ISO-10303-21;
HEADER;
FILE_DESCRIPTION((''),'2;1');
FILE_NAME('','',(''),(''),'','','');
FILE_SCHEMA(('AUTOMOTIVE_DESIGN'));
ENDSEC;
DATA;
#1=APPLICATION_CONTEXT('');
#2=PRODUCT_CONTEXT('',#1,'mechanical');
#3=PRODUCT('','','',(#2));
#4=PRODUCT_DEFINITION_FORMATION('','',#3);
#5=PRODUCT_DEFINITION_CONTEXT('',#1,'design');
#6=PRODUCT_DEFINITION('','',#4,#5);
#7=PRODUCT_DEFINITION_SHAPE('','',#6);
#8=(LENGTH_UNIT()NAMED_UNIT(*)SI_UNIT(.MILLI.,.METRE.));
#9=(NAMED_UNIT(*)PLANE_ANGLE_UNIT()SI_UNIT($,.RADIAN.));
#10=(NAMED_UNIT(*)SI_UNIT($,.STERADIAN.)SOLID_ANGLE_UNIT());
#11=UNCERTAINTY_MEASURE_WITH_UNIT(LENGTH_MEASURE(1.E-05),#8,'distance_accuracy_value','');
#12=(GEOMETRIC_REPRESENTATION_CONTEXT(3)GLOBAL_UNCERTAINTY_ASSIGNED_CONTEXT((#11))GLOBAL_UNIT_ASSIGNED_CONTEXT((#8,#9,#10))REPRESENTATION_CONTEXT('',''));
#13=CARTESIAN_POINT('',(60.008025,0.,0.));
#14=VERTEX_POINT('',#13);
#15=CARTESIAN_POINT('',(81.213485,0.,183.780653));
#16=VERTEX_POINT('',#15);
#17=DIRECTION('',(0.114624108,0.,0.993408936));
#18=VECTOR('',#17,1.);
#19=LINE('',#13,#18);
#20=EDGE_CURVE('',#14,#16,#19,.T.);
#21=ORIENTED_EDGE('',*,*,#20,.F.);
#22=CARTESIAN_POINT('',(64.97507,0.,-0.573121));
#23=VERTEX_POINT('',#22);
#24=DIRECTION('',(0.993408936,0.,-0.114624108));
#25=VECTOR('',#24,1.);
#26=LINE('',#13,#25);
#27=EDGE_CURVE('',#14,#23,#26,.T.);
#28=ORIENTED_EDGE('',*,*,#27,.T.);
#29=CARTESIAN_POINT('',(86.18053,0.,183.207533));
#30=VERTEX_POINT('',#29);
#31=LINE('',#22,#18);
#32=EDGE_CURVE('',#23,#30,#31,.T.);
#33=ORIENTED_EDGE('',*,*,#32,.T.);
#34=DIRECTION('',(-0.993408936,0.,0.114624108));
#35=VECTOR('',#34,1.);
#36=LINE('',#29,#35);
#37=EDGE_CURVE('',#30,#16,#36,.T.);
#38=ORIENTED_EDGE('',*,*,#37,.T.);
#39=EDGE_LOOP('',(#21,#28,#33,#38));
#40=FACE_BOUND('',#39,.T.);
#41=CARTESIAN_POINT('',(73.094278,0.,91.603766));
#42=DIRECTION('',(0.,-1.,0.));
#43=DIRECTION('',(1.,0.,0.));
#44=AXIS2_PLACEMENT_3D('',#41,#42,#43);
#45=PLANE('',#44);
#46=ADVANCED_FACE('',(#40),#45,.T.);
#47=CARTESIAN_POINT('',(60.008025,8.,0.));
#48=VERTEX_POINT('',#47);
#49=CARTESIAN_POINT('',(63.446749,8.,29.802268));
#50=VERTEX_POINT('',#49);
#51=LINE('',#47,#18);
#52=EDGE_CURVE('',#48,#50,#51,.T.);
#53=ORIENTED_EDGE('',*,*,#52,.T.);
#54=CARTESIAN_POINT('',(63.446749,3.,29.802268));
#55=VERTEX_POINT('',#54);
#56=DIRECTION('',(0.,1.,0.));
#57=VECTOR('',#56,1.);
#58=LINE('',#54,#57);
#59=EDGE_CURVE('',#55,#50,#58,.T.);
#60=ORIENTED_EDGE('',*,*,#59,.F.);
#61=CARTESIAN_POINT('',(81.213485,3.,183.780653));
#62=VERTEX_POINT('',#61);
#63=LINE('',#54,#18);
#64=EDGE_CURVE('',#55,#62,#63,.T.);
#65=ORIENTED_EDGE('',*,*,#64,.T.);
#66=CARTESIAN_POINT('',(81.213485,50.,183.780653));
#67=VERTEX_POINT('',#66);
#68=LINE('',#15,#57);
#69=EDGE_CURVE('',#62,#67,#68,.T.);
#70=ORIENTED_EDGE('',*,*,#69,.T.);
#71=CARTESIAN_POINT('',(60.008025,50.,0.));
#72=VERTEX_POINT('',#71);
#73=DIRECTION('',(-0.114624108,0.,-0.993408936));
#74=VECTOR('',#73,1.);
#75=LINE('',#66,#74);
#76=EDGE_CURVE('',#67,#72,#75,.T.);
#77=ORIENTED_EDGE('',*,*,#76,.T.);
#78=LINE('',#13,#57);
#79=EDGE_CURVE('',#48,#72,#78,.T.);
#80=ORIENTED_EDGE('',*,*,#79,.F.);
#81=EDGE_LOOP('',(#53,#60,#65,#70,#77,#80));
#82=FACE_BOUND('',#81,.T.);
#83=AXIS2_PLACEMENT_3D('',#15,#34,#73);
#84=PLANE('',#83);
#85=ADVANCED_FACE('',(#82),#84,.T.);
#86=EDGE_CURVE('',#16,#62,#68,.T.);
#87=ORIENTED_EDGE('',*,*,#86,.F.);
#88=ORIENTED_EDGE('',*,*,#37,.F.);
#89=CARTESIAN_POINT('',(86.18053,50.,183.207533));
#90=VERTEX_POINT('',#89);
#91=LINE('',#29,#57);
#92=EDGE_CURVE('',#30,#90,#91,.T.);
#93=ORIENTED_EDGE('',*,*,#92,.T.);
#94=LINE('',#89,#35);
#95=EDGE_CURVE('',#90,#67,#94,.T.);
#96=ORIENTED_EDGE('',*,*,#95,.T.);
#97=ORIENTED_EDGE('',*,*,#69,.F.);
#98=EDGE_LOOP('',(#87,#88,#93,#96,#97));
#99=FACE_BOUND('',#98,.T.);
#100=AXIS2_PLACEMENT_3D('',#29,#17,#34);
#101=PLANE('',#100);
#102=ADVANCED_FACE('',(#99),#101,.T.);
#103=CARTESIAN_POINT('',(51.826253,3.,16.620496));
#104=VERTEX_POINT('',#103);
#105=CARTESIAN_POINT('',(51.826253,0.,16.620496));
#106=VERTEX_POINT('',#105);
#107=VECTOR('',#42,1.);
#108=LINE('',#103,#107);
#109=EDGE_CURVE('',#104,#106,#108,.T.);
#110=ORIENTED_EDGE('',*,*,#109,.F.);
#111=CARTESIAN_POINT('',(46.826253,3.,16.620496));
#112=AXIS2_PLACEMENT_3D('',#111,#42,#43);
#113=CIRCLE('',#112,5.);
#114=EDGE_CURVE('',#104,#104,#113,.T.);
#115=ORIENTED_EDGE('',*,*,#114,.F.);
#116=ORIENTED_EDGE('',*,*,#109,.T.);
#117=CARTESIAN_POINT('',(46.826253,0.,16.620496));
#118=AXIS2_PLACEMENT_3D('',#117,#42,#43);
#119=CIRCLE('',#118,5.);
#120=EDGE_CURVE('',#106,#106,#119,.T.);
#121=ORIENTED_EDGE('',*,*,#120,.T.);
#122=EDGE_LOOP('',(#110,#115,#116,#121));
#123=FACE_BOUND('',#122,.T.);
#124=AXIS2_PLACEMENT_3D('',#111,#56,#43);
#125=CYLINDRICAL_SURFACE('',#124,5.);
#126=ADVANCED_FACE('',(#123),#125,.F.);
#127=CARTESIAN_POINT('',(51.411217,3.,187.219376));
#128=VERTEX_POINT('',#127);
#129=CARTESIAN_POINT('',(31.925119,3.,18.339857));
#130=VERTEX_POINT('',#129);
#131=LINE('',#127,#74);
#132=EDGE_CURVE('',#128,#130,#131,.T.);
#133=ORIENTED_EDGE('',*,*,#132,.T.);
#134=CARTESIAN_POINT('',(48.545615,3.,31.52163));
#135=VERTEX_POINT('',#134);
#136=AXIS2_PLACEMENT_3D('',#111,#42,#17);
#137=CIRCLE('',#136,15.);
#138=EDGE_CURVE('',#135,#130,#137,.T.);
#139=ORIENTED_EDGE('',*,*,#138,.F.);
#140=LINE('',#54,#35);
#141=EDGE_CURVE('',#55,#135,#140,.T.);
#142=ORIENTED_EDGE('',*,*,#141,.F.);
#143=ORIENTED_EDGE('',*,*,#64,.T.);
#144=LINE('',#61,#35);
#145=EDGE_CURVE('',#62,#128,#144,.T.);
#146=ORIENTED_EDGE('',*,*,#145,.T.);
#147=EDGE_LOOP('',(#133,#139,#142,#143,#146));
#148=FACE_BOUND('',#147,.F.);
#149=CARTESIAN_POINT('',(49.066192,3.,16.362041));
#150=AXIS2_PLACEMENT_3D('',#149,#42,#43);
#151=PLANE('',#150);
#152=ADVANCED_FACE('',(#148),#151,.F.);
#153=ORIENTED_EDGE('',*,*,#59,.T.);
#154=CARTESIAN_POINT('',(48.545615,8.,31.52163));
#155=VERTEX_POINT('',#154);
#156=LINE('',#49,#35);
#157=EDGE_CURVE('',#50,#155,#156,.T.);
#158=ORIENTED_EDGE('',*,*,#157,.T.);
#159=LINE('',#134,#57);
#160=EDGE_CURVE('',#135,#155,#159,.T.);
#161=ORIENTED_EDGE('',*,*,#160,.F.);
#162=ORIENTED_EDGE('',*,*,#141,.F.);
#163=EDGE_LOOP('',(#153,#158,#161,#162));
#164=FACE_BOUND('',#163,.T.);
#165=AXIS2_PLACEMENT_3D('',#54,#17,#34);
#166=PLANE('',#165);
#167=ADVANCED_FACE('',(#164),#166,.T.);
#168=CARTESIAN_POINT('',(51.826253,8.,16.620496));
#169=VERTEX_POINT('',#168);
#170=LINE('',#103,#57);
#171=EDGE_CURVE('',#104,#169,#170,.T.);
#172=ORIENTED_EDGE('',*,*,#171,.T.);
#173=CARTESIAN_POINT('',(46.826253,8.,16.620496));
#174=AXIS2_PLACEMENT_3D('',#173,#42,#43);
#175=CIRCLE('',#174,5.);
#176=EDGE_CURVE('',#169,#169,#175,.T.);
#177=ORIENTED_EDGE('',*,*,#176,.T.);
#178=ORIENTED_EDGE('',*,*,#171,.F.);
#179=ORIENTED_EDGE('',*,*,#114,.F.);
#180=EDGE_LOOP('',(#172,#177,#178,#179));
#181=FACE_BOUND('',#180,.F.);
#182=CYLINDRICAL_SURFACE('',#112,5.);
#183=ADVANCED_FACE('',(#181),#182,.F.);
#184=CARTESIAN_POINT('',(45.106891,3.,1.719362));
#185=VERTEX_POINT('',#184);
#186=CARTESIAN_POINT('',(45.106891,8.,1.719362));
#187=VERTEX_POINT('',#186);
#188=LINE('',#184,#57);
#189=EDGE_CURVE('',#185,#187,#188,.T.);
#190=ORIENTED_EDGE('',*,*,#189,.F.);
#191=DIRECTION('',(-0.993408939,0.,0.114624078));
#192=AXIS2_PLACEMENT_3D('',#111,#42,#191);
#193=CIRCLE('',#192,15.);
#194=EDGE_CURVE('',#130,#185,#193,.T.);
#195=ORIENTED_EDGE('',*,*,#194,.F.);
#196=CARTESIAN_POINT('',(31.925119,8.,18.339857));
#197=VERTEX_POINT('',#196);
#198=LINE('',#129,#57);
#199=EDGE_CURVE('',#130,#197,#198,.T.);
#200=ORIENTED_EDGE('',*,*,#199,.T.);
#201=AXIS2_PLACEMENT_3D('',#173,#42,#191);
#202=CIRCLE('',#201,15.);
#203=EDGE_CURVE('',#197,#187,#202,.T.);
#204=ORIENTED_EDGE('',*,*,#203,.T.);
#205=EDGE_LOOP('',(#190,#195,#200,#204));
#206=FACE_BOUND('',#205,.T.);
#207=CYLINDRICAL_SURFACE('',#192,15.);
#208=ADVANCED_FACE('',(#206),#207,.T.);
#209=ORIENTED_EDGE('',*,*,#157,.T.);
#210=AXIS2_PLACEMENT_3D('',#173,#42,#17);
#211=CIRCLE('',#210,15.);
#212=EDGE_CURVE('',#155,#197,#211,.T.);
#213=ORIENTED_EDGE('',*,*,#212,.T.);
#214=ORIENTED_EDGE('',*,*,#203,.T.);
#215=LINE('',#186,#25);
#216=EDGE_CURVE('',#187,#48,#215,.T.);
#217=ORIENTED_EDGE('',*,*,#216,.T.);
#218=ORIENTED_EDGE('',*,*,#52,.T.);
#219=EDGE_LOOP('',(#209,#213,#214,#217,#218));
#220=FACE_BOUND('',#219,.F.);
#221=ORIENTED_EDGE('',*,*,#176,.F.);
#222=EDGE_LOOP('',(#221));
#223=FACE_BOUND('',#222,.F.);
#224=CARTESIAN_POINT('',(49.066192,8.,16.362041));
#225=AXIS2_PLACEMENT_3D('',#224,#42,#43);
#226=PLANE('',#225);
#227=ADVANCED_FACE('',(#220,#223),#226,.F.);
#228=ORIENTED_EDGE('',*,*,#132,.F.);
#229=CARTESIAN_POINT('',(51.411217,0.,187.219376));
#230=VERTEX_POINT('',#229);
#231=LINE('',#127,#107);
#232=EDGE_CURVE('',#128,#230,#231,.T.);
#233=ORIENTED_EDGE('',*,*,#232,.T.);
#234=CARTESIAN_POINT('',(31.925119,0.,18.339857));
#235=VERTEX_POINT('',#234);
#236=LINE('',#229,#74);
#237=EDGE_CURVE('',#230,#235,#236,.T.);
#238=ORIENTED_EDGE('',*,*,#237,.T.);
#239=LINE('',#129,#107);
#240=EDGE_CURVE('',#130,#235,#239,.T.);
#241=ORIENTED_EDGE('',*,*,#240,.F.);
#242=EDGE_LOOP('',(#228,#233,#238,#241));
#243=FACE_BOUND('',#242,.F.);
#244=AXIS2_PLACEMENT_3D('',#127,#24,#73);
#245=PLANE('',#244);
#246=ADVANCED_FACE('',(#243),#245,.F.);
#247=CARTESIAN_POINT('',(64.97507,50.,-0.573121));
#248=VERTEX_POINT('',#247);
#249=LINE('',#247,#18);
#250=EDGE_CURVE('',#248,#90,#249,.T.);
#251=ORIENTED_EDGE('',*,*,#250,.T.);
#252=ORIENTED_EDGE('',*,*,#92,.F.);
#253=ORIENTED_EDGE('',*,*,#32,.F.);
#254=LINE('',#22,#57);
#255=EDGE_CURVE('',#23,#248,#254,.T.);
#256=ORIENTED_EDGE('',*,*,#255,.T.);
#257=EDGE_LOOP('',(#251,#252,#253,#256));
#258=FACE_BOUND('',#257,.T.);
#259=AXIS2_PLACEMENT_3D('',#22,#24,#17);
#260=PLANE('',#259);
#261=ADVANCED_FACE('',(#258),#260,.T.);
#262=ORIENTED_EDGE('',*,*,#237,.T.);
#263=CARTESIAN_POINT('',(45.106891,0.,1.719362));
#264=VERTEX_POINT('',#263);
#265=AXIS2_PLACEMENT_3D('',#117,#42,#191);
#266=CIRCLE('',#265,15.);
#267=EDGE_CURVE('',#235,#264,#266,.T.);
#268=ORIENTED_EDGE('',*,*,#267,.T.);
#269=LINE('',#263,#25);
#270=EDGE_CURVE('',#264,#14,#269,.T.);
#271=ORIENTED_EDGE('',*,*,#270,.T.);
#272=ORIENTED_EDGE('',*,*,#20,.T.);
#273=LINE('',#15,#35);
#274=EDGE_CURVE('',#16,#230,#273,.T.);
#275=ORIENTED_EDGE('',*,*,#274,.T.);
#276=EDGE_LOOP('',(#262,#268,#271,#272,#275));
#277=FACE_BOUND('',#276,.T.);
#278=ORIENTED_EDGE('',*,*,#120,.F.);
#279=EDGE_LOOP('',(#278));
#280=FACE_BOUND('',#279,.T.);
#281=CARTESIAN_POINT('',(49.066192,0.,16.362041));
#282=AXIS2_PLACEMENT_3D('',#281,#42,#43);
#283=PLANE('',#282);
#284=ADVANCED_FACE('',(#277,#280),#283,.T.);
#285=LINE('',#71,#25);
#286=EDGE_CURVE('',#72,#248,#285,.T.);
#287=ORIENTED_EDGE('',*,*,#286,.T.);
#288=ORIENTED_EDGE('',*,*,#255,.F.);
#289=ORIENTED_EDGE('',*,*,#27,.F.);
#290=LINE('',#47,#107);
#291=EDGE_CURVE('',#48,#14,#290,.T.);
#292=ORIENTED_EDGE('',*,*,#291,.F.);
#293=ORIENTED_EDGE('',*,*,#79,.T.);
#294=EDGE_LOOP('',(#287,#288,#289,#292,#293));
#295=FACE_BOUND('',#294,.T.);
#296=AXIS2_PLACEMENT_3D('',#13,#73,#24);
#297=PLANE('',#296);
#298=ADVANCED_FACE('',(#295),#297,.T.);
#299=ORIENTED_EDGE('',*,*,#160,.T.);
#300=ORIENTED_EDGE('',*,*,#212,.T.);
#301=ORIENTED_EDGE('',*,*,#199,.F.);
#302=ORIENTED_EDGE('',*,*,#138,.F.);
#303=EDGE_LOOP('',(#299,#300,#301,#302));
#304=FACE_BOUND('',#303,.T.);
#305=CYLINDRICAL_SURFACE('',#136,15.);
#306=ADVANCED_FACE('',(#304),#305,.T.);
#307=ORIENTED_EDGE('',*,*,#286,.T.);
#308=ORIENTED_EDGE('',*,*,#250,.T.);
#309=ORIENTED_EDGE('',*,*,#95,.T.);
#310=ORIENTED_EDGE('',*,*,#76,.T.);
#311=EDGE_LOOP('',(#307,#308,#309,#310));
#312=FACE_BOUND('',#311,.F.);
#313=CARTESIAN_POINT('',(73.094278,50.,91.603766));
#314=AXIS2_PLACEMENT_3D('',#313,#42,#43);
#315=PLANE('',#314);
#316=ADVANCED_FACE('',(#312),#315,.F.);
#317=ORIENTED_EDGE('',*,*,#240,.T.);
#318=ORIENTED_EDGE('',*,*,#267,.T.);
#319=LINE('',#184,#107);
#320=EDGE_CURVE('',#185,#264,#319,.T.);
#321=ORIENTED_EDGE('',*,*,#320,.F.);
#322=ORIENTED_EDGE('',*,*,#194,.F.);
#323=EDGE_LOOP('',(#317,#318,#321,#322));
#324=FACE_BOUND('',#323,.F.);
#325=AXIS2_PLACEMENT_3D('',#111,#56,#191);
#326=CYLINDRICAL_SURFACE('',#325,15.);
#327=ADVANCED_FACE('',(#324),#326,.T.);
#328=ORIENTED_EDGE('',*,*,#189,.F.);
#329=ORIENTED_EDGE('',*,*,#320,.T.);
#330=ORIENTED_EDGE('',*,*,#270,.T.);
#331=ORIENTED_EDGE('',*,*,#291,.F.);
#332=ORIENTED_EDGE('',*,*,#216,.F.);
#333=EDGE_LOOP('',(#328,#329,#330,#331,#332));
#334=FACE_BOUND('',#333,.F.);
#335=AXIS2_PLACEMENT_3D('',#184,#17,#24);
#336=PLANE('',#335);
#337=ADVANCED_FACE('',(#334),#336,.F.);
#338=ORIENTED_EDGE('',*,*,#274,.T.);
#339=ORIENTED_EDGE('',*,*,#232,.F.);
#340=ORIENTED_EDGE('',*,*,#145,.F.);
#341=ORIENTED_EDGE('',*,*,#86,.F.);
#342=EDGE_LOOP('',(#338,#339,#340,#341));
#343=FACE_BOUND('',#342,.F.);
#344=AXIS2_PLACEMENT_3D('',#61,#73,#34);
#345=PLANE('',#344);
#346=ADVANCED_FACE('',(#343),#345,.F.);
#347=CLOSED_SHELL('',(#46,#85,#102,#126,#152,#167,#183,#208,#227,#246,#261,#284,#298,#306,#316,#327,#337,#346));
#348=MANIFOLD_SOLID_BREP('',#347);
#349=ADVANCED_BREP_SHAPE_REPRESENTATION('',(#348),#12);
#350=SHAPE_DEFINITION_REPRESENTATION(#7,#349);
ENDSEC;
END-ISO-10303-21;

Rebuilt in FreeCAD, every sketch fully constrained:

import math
import FreeCAD as App
import Part
import Sketcher

V = App.Vector


def add_polygon(sketch, points):
    """Adds a closed chain of lines whose ends are joined by coincident constraints."""
    first, n = sketch.GeometryCount, len(points)
    for a, b in zip(points, points[1:] + points[:1]):
        sketch.addGeometry(Part.LineSegment(App.Vector(*a, 0), App.Vector(*b, 0)), False)
    for i in range(n):
        sketch.addConstraint(Sketcher.Constraint("Coincident", first + i, 2, first + (i + 1) % n, 1))

doc = App.newDocument("Part")
params = doc.addObject("Spreadsheet::Sheet", "Params")
for row, (alias, value) in enumerate([
    ("sketch1_length", "5 mm"),
    ("sketch1_length2", "185 mm"),
    ("pad1_length", "50 mm"),
    ("sketch2_diameter", "10 mm"),
    ("sketch2_radius", "15 mm"),
    ("sketch2_length", "15 mm"),
    ("pad2_length", "5 mm"),
    ("sketch3_diameter", "10 mm"),
    ("sketch3_radius", "15 mm"),
    ("sketch3_length", "15 mm"),
    ("sketch3_length2", "155 mm"),
    ("pad3_length", "3 mm"),
], start=1):
    params.set(f"A{row}", alias)
    params.set(f"B{row}", "=" + value)
    params.setAlias(f"B{row}", alias)

body = doc.addObject("PartDesign::Body", "Body")

# Sketch on XZ plane
sketch1 = body.newObject("Sketcher::SketchObject", "Sketch")
sketch1.AttachmentSupport = (doc.getObject("XZ_Plane"), [""])
sketch1.MapMode = "FlatFace"
add_polygon(sketch1, [(86.2, 183.2), (81.2, 183.8), (60, 0), (65, -0.6)])  # lines 0-3
sketch1.addConstraint(Sketcher.Constraint("PointOnObject", 1, 2, -1))
sketch1.addConstraint(Sketcher.Constraint("Perpendicular", 0, 1))
sketch1.addConstraint(Sketcher.Constraint("Perpendicular", 1, 2))
sketch1.addConstraint(Sketcher.Constraint("Perpendicular", 2, 3))
sketch1.addConstraint(Sketcher.Constraint("Distance", 0, 5.0))
sketch1.addConstraint(Sketcher.Constraint("Distance", 1, 185.0))
sketch1.addConstraint(Sketcher.Constraint("DistanceX", -1, 1, 2, 2, 64.97507))
sketch1.addConstraint(Sketcher.Constraint("DistanceY", 2, 2, -1, 1, 0.573121))
sketch1.setExpression("Constraints[8]", "Params.sketch1_length")
sketch1.setExpression("Constraints[9]", "Params.sketch1_length2")
pad1 = body.newObject("PartDesign::Pad", "Pad")
pad1.Profile = sketch1
pad1.setExpression("Length", "Params.pad1_length")
pad1.Reversed = True

# Sketch on XZ plane
sketch2 = body.newObject("Sketcher::SketchObject", "Sketch001")
sketch2.AttachmentSupport = (doc.getObject("XZ_Plane"), [""])
sketch2.MapMode = "FlatFace"
sketch2.AttachmentOffset = App.Placement(V(0, 0, -3), App.Rotation())
sketch2.addGeometry(Part.LineSegment(V(45, 2, 0), V(60, 0, 0)), False)
sketch2.addGeometry(Part.LineSegment(V(60, 0, 0), V(63, 30, 0)), False)
sketch2.addGeometry(Part.LineSegment(V(63, 30, 0), V(49, 32, 0)), False)
sketch2.addGeometry(Part.ArcOfCircle(Part.Circle(V(47, 17, 0), V(0, 0, 1), 15), math.radians(83), math.radians(173)), False)
sketch2.addGeometry(Part.ArcOfCircle(Part.Circle(V(47, 17, 0), V(0, 0, 1), 15), math.radians(173), math.radians(263)), False)
sketch2.addGeometry(Part.Circle(V(47, 17, 0), V(0, 0, 1), 5), False)
sketch2.addConstraint(Sketcher.Constraint("Coincident", 0, 2, 1, 1))
sketch2.addConstraint(Sketcher.Constraint("Coincident", 1, 2, 2, 1))
sketch2.addConstraint(Sketcher.Constraint("Tangent", 2, 2, 3, 1))
sketch2.addConstraint(Sketcher.Constraint("Tangent", 3, 2, 4, 1))
sketch2.addConstraint(Sketcher.Constraint("Tangent", 4, 2, 0, 1))
sketch2.addConstraint(Sketcher.Constraint("Coincident", 5, 3, 3, 3))
sketch2.addConstraint(Sketcher.Constraint("Equal", 3, 4))
sketch2.addConstraint(Sketcher.Constraint("PointOnObject", 0, 2, -1))
sketch2.addConstraint(Sketcher.Constraint("Perpendicular", 0, 1))
sketch2.addConstraint(Sketcher.Constraint("Perpendicular", 1, 2))
sketch2.addConstraint(Sketcher.Constraint("Diameter", 5, 10.0))
sketch2.addConstraint(Sketcher.Constraint("Radius", 3, 15.0))
sketch2.addConstraint(Sketcher.Constraint("Distance", 0, 15.0))
sketch2.addConstraint(Sketcher.Constraint("DistanceX", -1, 1, 1, 2, 63.446749))
sketch2.addConstraint(Sketcher.Constraint("DistanceY", -1, 1, 1, 2, 29.802268))
sketch2.addConstraint(Sketcher.Constraint("DistanceX", -1, 1, 3, 2, 31.925119))
sketch2.setExpression("Constraints[10]", "Params.sketch2_diameter")
sketch2.setExpression("Constraints[11]", "Params.sketch2_radius")
sketch2.setExpression("Constraints[12]", "Params.sketch2_length")
pad2 = body.newObject("PartDesign::Pad", "Pad001")
pad2.Profile = sketch2
pad2.setExpression("Length", "Params.pad2_length")
pad2.Reversed = True

# Sketch on XZ plane
sketch3 = body.newObject("Sketcher::SketchObject", "Sketch002")
sketch3.AttachmentSupport = (doc.getObject("XZ_Plane"), [""])
sketch3.MapMode = "FlatFace"
sketch3.AttachmentOffset = App.Placement(V(0, 0, -3), App.Rotation())
sketch3.addGeometry(Part.LineSegment(V(45, 2, 0), V(60, 0, 0)), False)
sketch3.addGeometry(Part.LineSegment(V(60, 0, 0), V(63, 30, 0)), False)
sketch3.addGeometry(Part.LineSegment(V(63, 30, 0), V(81, 184, 0)), False)
sketch3.addGeometry(Part.LineSegment(V(81, 184, 0), V(51, 187, 0)), False)
sketch3.addGeometry(Part.LineSegment(V(51, 187, 0), V(32, 18, 0)), False)
sketch3.addGeometry(Part.ArcOfCircle(Part.Circle(V(47, 17, 0), V(0, 0, 1), 15), math.radians(173), math.radians(263)), False)
sketch3.addGeometry(Part.Circle(V(47, 17, 0), V(0, 0, 1), 5), False)
sketch3.addConstraint(Sketcher.Constraint("Coincident", 0, 2, 1, 1))
sketch3.addConstraint(Sketcher.Constraint("Coincident", 1, 2, 2, 1))
sketch3.addConstraint(Sketcher.Constraint("Coincident", 2, 2, 3, 1))
sketch3.addConstraint(Sketcher.Constraint("Coincident", 3, 2, 4, 1))
sketch3.addConstraint(Sketcher.Constraint("Tangent", 4, 2, 5, 1))
sketch3.addConstraint(Sketcher.Constraint("Tangent", 5, 2, 0, 1))
sketch3.addConstraint(Sketcher.Constraint("Coincident", 6, 3, 5, 3))
sketch3.addConstraint(Sketcher.Constraint("PointOnObject", 0, 2, -1))
sketch3.addConstraint(Sketcher.Constraint("Perpendicular", 0, 1))
sketch3.addConstraint(Sketcher.Constraint("Parallel", 1, 2))
sketch3.addConstraint(Sketcher.Constraint("Perpendicular", 2, 3))
sketch3.addConstraint(Sketcher.Constraint("Perpendicular", 3, 4))
sketch3.addConstraint(Sketcher.Constraint("Equal", 1, 3))
sketch3.addConstraint(Sketcher.Constraint("Diameter", 6, 10.0))
sketch3.addConstraint(Sketcher.Constraint("Radius", 5, 15.0))
sketch3.addConstraint(Sketcher.Constraint("Distance", 0, 15.0))
sketch3.addConstraint(Sketcher.Constraint("Distance", 2, 155.0))
sketch3.addConstraint(Sketcher.Constraint("DistanceX", 4, 2, 3, 2, 19.486098))
sketch3.addConstraint(Sketcher.Constraint("DistanceX", -1, 1, 1, 2, 63.446749))
sketch3.setExpression("Constraints[13]", "Params.sketch3_diameter")
sketch3.setExpression("Constraints[14]", "Params.sketch3_radius")
sketch3.setExpression("Constraints[15]", "Params.sketch3_length")
sketch3.setExpression("Constraints[16]", "Params.sketch3_length2")
pad3 = body.newObject("PartDesign::Pad", "Pad002")
pad3.Profile = sketch3
pad3.setExpression("Length", "Params.pad3_length")

doc.recompute()
